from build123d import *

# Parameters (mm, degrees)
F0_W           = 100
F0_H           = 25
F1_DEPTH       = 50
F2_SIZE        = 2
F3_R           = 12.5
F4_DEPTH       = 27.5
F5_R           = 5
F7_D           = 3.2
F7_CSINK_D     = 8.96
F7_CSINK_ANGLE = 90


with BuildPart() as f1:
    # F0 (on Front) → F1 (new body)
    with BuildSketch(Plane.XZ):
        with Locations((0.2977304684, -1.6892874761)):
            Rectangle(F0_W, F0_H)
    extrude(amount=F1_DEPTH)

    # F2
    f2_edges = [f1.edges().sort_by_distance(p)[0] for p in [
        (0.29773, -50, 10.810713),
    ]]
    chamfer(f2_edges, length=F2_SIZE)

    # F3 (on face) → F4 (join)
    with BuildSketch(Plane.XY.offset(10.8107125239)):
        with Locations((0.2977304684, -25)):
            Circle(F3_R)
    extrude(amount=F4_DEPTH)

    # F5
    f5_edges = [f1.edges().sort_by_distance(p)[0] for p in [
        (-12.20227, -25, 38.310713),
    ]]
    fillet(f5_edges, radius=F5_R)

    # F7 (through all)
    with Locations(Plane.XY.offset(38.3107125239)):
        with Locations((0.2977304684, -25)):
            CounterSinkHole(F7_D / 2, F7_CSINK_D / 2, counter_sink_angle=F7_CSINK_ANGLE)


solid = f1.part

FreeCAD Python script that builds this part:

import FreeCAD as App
import Part
import Sketcher
Q = App.Units.Quantity


def edges_at(feature, points):
    """Names of the edges that pass closest to the given points."""
    edges = feature.Shape.Edges
    near = lambda p: min(range(len(edges)), key=lambda i: edges[i].distToShape(Part.Vertex(*p))[0])
    return sorted({f"Edge{near(p) + 1}" for p in points})

doc = App.newDocument("Part")
body = doc.addObject("PartDesign::Body", "Body")

sketch1 = doc.addObject("Sketcher::SketchObject", "Sketch")
body.addObject(sketch1)
sketch1.AttachmentSupport = (doc.XZ_Plane, [""])
sketch1.MapMode = "FlatFace"
sketch1.addGeometry(Part.LineSegment(App.Vector(-50, 11, 0), App.Vector(-50, -14, 0)), False)
sketch1.addGeometry(Part.LineSegment(App.Vector(-50, -14, 0), App.Vector(50, -14, 0)), False)
sketch1.addGeometry(Part.LineSegment(App.Vector(50, -14, 0), App.Vector(50, 11, 0)), False)
sketch1.addGeometry(Part.LineSegment(App.Vector(50, 11, 0), App.Vector(-50, 11, 0)), False)
sketch1.addConstraint(Sketcher.Constraint("Coincident", 0, 2, 1, 1))
sketch1.addConstraint(Sketcher.Constraint("Coincident", 1, 2, 2, 1))
sketch1.addConstraint(Sketcher.Constraint("Coincident", 2, 2, 3, 1))
sketch1.addConstraint(Sketcher.Constraint("Coincident", 3, 2, 0, 1))
sketch1.addConstraint(Sketcher.Constraint("Vertical", 0))
sketch1.addConstraint(Sketcher.Constraint("Horizontal", 1))
sketch1.addConstraint(Sketcher.Constraint("Vertical", 2))
sketch1.addConstraint(Sketcher.Constraint("Horizontal", 3))
sketch1.addConstraint(Sketcher.Constraint("DistanceX", 1, 1, 1, 2, Q("100 mm")))
sketch1.addConstraint(Sketcher.Constraint("DistanceY", 0, 2, 0, 1, Q("25 mm")))
sketch1.addConstraint(Sketcher.Constraint("DistanceX", 0, 2, -1, 1, Q("49.70227 mm")))
sketch1.addConstraint(Sketcher.Constraint("DistanceY", 0, 2, -1, 1, Q("14.189287 mm")))
pad1 = doc.addObject("PartDesign::Pad", "Pad")
body.addObject(pad1)
pad1.Profile = sketch1
pad1.Length = 50
doc.recompute()

chamfer = doc.addObject("PartDesign::Chamfer", "Chamfer")
body.addObject(chamfer)
chamfer.Base = (pad1, edges_at(pad1, [(0.298, -50, 10.811)]))
chamfer.Size = 2

sketch2 = doc.addObject("Sketcher::SketchObject", "Sketch001")
body.addObject(sketch2)
sketch2.AttachmentSupport = (doc.XY_Plane, [""])
sketch2.MapMode = "FlatFace"
sketch2.AttachmentOffset = App.Placement(App.Vector(0, 0, 10.810713), App.Rotation())
sketch2.addGeometry(Part.Circle(App.Vector(0, -25, 0), App.Vector(0, 0, 1), 12), False)
sketch2.addConstraint(Sketcher.Constraint("Diameter", 0, Q("25 mm")))
sketch2.addConstraint(Sketcher.Constraint("DistanceY", 0, 3, -1, 1, Q("25 mm")))
sketch2.addConstraint(Sketcher.Constraint("DistanceX", -1, 1, 0, 3, Q("0.29773 mm")))
pad2 = doc.addObject("PartDesign::Pad", "Pad001")
body.addObject(pad2)
pad2.Profile = sketch2
pad2.Length = 27.5
doc.recompute()

fillet = doc.addObject("PartDesign::Fillet", "Fillet")
body.addObject(fillet)
fillet.Base = (pad2, edges_at(pad2, [(-12.202, -25, 38.311)]))
fillet.Radius = 5

sketch3 = doc.addObject("Sketcher::SketchObject", "Sketch002")
body.addObject(sketch3)
sketch3.AttachmentSupport = (doc.XY_Plane, [""])
sketch3.MapMode = "FlatFace"
sketch3.AttachmentOffset = App.Placement(App.Vector(0, 0, 38.310713), App.Rotation())
sketch3.addGeometry(Part.Circle(App.Vector(0.3, -25, 0), App.Vector(0, 0, 1), 1.6), False)
sketch3.addConstraint(Sketcher.Constraint("Diameter", 0, Q("3.2 mm")))
sketch3.addConstraint(Sketcher.Constraint("DistanceY", 0, 3, -1, 1, Q("25 mm")))
sketch3.addConstraint(Sketcher.Constraint("DistanceX", -1, 1, 0, 3, Q("0.29773 mm")))
doc.recompute()
hole = doc.addObject("PartDesign::Hole", "Hole")
body.addObject(hole)
hole.Profile = sketch3
hole.ThreadType = "None"
hole.Diameter = 3.2
hole.DepthType = "ThroughAll"
hole.HoleCutType = "Countersink"
hole.HoleCutDiameter = 8.96
hole.HoleCutCountersinkAngle = 90

doc.recompute()
